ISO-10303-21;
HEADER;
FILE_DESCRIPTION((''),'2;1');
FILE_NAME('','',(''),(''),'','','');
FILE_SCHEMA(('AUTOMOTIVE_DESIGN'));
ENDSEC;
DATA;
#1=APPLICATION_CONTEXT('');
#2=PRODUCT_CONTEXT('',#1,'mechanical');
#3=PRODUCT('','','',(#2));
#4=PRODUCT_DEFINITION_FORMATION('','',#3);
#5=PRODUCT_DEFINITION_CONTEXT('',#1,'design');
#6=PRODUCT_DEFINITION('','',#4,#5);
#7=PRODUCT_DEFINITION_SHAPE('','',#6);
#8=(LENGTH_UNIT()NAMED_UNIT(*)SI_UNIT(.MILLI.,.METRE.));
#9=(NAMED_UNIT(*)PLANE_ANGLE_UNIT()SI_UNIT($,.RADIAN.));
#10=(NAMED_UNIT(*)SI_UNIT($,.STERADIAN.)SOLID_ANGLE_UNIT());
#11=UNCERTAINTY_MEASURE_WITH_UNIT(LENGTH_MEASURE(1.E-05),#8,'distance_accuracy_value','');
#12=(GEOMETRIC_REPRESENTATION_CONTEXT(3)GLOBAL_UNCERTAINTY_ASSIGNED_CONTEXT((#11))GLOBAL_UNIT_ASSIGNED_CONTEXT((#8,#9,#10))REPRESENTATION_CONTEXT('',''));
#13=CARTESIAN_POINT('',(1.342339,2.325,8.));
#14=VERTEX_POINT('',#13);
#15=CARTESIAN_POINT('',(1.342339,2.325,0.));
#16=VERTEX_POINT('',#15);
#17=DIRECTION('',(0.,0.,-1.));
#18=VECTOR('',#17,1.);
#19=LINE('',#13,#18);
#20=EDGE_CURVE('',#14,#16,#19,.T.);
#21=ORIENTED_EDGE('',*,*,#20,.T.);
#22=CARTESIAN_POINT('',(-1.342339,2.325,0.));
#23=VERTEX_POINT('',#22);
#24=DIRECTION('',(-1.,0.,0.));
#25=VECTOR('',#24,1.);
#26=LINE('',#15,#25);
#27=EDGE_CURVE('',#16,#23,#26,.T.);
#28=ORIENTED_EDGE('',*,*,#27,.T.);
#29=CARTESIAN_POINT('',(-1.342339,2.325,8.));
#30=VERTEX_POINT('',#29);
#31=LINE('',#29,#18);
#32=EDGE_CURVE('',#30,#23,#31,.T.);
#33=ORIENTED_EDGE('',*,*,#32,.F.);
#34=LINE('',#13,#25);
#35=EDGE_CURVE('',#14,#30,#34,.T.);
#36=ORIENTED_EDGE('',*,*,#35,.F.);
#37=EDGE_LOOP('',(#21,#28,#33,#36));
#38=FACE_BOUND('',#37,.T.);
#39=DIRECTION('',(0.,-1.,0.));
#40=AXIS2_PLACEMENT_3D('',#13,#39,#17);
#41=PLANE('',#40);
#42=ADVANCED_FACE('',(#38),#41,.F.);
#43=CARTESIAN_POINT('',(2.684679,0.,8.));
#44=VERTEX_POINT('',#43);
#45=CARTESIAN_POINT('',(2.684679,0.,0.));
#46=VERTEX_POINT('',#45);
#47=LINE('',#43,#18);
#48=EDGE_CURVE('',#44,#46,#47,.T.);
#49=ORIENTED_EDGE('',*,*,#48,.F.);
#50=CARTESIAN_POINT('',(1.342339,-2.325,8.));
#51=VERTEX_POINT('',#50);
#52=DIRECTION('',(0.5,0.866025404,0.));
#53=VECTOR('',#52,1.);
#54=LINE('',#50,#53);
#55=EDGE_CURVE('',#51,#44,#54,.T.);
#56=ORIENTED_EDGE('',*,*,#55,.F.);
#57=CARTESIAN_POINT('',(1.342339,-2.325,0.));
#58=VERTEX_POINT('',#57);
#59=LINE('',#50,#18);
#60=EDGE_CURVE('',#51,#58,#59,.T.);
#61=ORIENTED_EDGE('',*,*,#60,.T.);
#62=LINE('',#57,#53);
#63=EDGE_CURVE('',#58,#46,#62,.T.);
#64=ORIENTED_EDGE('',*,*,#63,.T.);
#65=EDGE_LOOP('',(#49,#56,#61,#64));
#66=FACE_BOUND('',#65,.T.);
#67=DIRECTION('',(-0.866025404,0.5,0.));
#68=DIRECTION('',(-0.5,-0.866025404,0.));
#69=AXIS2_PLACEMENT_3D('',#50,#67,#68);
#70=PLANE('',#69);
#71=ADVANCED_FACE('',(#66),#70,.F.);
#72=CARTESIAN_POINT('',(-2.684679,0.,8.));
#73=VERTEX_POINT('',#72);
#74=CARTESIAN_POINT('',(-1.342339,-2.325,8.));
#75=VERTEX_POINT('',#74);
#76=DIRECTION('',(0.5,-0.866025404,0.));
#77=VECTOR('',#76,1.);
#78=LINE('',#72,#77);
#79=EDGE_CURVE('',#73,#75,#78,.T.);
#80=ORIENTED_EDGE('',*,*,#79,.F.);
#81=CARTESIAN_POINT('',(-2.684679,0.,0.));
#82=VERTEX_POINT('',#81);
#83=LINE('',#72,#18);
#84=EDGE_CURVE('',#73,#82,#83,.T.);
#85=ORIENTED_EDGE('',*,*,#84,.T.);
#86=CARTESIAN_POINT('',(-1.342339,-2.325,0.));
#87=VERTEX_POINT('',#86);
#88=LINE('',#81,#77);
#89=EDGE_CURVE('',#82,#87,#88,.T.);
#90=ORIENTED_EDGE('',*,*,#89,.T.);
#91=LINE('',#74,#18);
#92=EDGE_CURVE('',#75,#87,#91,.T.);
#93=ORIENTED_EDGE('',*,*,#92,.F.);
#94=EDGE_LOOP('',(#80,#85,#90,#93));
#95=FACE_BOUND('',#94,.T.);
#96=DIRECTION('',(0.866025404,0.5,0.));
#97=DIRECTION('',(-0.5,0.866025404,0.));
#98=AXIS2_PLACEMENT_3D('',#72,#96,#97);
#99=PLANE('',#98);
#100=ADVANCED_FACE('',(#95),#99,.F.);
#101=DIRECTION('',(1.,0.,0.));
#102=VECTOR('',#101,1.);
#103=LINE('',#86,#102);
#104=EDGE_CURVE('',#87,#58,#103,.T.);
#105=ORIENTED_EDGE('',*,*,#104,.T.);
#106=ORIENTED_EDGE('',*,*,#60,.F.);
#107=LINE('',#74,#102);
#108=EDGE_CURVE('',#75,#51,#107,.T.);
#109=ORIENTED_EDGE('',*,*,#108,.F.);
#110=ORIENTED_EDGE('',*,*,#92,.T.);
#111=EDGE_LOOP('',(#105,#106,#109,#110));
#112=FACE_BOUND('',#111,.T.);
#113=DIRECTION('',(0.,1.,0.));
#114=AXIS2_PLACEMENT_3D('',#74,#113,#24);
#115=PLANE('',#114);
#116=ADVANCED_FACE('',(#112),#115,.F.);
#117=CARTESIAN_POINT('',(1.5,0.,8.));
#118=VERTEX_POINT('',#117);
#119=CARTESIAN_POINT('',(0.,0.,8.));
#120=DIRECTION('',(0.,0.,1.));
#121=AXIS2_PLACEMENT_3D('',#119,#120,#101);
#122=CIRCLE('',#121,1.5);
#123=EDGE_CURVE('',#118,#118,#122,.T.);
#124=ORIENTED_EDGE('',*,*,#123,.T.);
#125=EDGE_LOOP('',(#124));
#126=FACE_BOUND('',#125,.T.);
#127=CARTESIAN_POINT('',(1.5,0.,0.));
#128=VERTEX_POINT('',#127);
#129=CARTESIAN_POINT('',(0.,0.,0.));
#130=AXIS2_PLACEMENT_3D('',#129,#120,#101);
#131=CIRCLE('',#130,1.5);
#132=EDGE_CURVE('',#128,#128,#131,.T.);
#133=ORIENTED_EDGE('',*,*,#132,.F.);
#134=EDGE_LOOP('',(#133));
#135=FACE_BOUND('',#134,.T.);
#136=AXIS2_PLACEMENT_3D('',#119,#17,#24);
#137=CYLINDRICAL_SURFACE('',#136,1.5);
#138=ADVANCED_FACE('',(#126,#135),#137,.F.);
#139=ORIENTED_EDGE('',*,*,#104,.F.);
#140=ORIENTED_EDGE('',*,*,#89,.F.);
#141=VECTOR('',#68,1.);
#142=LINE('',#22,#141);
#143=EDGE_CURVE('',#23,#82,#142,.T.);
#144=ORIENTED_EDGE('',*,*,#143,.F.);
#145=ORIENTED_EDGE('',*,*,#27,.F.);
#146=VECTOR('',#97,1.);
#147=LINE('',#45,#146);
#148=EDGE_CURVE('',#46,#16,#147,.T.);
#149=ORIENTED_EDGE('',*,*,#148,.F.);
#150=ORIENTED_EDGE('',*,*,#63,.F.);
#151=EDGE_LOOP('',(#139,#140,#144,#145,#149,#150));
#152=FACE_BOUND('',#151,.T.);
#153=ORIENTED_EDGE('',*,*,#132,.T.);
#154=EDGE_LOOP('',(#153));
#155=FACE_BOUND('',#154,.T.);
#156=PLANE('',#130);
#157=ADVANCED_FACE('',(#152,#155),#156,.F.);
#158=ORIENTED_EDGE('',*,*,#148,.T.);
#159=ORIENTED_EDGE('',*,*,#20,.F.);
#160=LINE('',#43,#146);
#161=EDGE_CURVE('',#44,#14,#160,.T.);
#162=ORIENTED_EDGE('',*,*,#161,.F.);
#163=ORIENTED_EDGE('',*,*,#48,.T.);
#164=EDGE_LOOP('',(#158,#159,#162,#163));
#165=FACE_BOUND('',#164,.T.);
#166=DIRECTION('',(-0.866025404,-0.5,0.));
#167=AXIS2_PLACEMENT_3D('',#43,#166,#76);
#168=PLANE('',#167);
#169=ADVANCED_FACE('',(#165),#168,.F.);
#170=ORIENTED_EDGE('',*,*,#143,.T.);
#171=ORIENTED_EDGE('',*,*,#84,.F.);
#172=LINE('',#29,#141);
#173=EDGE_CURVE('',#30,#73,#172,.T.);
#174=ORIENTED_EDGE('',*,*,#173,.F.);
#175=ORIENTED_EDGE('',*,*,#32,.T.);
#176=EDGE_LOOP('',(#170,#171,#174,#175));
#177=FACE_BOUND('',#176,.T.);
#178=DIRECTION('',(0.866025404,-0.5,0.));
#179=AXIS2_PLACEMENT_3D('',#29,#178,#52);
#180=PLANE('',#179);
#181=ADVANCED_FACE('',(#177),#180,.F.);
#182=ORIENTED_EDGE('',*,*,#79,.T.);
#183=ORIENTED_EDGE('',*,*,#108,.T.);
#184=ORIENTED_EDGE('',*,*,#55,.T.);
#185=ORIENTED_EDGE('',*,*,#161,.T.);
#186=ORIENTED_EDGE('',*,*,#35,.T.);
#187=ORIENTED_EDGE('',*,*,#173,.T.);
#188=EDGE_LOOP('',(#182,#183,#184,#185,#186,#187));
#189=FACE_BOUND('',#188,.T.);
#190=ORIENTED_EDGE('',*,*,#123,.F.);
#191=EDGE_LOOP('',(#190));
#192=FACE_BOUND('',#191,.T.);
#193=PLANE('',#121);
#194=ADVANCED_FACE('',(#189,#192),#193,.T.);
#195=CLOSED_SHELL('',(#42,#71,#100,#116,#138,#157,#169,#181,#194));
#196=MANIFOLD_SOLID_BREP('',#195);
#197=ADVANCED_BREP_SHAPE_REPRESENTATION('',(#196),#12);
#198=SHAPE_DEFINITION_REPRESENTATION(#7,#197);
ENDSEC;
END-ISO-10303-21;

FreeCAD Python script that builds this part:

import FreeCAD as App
import Part
import Sketcher
from FreeCAD import Vector
Q = App.Units.Quantity

doc = App.newDocument("Part")
body = doc.addObject("PartDesign::Body", "Body")

sketch1 = doc.addObject("Sketcher::SketchObject", "Sketch")
body.addObject(sketch1)
sketch1.AttachmentSupport = (doc.XY_Plane, [""])
sketch1.MapMode = "FlatFace"
sketch1.addGeometry([
    Part.LineSegment(Vector(1.3, -2.3, 0), Vector(2.7, 0, 0)),
    Part.LineSegment(Vector(2.7, 0, 0), Vector(1.3, 2.3, 0)),
    Part.LineSegment(Vector(1.3, 2.3, 0), Vector(-1.3, 2.3, 0)),
    Part.LineSegment(Vector(-1.3, 2.3, 0), Vector(-2.7, 0, 0)),
    Part.LineSegment(Vector(-2.7, 0, 0), Vector(-1.3, -2.3, 0)),
    Part.LineSegment(Vector(-1.3, -2.3, 0), Vector(1.3, -2.3, 0)),
    Part.Circle(Vector(0, 0, 0), Vector(0, 0, 1), 1.5),
], False)
sketch1.addConstraint([
    Sketcher.Constraint("Coincident", 0, 2, 1, 1),
    Sketcher.Constraint("Coincident", 1, 2, 2, 1),
    Sketcher.Constraint("Coincident", 2, 2, 3, 1),
    Sketcher.Constraint("Coincident", 3, 2, 4, 1),
    Sketcher.Constraint("Coincident", 4, 2, 5, 1),
    Sketcher.Constraint("Coincident", 5, 2, 0, 1),
    Sketcher.Constraint("Horizontal", 2),
    Sketcher.Constraint("Horizontal", 5),
    Sketcher.Constraint("Coincident", 6, 3, -1, 1),
    Sketcher.Constraint("Symmetric", 0, 2, 3, 2, -1, 1),
    Sketcher.Constraint("Symmetric", 1, 2, 4, 2, -1, 1),
    Sketcher.Constraint("PointOnObject", 0, 2, -1),
    Sketcher.Constraint("Parallel", 0, 3),
    Sketcher.Constraint("Vertical", 2, 2, 4, 2),
    Sketcher.Constraint("Diameter", 6, Q("3 mm")),
    Sketcher.Constraint("Angle", 0, Q("60 deg")),
    Sketcher.Constraint("DistanceY", 4, 2, 2, 2, Q("4.65 mm")),
    Sketcher.Constraint("DistanceX", 2, 2, 2, 1, Q("2.684679 mm")),
])
pad1 = doc.addObject("PartDesign::Pad", "Pad")
body.addObject(pad1)
pad1.Profile = sketch1
pad1.Length = 8

doc.recompute()
